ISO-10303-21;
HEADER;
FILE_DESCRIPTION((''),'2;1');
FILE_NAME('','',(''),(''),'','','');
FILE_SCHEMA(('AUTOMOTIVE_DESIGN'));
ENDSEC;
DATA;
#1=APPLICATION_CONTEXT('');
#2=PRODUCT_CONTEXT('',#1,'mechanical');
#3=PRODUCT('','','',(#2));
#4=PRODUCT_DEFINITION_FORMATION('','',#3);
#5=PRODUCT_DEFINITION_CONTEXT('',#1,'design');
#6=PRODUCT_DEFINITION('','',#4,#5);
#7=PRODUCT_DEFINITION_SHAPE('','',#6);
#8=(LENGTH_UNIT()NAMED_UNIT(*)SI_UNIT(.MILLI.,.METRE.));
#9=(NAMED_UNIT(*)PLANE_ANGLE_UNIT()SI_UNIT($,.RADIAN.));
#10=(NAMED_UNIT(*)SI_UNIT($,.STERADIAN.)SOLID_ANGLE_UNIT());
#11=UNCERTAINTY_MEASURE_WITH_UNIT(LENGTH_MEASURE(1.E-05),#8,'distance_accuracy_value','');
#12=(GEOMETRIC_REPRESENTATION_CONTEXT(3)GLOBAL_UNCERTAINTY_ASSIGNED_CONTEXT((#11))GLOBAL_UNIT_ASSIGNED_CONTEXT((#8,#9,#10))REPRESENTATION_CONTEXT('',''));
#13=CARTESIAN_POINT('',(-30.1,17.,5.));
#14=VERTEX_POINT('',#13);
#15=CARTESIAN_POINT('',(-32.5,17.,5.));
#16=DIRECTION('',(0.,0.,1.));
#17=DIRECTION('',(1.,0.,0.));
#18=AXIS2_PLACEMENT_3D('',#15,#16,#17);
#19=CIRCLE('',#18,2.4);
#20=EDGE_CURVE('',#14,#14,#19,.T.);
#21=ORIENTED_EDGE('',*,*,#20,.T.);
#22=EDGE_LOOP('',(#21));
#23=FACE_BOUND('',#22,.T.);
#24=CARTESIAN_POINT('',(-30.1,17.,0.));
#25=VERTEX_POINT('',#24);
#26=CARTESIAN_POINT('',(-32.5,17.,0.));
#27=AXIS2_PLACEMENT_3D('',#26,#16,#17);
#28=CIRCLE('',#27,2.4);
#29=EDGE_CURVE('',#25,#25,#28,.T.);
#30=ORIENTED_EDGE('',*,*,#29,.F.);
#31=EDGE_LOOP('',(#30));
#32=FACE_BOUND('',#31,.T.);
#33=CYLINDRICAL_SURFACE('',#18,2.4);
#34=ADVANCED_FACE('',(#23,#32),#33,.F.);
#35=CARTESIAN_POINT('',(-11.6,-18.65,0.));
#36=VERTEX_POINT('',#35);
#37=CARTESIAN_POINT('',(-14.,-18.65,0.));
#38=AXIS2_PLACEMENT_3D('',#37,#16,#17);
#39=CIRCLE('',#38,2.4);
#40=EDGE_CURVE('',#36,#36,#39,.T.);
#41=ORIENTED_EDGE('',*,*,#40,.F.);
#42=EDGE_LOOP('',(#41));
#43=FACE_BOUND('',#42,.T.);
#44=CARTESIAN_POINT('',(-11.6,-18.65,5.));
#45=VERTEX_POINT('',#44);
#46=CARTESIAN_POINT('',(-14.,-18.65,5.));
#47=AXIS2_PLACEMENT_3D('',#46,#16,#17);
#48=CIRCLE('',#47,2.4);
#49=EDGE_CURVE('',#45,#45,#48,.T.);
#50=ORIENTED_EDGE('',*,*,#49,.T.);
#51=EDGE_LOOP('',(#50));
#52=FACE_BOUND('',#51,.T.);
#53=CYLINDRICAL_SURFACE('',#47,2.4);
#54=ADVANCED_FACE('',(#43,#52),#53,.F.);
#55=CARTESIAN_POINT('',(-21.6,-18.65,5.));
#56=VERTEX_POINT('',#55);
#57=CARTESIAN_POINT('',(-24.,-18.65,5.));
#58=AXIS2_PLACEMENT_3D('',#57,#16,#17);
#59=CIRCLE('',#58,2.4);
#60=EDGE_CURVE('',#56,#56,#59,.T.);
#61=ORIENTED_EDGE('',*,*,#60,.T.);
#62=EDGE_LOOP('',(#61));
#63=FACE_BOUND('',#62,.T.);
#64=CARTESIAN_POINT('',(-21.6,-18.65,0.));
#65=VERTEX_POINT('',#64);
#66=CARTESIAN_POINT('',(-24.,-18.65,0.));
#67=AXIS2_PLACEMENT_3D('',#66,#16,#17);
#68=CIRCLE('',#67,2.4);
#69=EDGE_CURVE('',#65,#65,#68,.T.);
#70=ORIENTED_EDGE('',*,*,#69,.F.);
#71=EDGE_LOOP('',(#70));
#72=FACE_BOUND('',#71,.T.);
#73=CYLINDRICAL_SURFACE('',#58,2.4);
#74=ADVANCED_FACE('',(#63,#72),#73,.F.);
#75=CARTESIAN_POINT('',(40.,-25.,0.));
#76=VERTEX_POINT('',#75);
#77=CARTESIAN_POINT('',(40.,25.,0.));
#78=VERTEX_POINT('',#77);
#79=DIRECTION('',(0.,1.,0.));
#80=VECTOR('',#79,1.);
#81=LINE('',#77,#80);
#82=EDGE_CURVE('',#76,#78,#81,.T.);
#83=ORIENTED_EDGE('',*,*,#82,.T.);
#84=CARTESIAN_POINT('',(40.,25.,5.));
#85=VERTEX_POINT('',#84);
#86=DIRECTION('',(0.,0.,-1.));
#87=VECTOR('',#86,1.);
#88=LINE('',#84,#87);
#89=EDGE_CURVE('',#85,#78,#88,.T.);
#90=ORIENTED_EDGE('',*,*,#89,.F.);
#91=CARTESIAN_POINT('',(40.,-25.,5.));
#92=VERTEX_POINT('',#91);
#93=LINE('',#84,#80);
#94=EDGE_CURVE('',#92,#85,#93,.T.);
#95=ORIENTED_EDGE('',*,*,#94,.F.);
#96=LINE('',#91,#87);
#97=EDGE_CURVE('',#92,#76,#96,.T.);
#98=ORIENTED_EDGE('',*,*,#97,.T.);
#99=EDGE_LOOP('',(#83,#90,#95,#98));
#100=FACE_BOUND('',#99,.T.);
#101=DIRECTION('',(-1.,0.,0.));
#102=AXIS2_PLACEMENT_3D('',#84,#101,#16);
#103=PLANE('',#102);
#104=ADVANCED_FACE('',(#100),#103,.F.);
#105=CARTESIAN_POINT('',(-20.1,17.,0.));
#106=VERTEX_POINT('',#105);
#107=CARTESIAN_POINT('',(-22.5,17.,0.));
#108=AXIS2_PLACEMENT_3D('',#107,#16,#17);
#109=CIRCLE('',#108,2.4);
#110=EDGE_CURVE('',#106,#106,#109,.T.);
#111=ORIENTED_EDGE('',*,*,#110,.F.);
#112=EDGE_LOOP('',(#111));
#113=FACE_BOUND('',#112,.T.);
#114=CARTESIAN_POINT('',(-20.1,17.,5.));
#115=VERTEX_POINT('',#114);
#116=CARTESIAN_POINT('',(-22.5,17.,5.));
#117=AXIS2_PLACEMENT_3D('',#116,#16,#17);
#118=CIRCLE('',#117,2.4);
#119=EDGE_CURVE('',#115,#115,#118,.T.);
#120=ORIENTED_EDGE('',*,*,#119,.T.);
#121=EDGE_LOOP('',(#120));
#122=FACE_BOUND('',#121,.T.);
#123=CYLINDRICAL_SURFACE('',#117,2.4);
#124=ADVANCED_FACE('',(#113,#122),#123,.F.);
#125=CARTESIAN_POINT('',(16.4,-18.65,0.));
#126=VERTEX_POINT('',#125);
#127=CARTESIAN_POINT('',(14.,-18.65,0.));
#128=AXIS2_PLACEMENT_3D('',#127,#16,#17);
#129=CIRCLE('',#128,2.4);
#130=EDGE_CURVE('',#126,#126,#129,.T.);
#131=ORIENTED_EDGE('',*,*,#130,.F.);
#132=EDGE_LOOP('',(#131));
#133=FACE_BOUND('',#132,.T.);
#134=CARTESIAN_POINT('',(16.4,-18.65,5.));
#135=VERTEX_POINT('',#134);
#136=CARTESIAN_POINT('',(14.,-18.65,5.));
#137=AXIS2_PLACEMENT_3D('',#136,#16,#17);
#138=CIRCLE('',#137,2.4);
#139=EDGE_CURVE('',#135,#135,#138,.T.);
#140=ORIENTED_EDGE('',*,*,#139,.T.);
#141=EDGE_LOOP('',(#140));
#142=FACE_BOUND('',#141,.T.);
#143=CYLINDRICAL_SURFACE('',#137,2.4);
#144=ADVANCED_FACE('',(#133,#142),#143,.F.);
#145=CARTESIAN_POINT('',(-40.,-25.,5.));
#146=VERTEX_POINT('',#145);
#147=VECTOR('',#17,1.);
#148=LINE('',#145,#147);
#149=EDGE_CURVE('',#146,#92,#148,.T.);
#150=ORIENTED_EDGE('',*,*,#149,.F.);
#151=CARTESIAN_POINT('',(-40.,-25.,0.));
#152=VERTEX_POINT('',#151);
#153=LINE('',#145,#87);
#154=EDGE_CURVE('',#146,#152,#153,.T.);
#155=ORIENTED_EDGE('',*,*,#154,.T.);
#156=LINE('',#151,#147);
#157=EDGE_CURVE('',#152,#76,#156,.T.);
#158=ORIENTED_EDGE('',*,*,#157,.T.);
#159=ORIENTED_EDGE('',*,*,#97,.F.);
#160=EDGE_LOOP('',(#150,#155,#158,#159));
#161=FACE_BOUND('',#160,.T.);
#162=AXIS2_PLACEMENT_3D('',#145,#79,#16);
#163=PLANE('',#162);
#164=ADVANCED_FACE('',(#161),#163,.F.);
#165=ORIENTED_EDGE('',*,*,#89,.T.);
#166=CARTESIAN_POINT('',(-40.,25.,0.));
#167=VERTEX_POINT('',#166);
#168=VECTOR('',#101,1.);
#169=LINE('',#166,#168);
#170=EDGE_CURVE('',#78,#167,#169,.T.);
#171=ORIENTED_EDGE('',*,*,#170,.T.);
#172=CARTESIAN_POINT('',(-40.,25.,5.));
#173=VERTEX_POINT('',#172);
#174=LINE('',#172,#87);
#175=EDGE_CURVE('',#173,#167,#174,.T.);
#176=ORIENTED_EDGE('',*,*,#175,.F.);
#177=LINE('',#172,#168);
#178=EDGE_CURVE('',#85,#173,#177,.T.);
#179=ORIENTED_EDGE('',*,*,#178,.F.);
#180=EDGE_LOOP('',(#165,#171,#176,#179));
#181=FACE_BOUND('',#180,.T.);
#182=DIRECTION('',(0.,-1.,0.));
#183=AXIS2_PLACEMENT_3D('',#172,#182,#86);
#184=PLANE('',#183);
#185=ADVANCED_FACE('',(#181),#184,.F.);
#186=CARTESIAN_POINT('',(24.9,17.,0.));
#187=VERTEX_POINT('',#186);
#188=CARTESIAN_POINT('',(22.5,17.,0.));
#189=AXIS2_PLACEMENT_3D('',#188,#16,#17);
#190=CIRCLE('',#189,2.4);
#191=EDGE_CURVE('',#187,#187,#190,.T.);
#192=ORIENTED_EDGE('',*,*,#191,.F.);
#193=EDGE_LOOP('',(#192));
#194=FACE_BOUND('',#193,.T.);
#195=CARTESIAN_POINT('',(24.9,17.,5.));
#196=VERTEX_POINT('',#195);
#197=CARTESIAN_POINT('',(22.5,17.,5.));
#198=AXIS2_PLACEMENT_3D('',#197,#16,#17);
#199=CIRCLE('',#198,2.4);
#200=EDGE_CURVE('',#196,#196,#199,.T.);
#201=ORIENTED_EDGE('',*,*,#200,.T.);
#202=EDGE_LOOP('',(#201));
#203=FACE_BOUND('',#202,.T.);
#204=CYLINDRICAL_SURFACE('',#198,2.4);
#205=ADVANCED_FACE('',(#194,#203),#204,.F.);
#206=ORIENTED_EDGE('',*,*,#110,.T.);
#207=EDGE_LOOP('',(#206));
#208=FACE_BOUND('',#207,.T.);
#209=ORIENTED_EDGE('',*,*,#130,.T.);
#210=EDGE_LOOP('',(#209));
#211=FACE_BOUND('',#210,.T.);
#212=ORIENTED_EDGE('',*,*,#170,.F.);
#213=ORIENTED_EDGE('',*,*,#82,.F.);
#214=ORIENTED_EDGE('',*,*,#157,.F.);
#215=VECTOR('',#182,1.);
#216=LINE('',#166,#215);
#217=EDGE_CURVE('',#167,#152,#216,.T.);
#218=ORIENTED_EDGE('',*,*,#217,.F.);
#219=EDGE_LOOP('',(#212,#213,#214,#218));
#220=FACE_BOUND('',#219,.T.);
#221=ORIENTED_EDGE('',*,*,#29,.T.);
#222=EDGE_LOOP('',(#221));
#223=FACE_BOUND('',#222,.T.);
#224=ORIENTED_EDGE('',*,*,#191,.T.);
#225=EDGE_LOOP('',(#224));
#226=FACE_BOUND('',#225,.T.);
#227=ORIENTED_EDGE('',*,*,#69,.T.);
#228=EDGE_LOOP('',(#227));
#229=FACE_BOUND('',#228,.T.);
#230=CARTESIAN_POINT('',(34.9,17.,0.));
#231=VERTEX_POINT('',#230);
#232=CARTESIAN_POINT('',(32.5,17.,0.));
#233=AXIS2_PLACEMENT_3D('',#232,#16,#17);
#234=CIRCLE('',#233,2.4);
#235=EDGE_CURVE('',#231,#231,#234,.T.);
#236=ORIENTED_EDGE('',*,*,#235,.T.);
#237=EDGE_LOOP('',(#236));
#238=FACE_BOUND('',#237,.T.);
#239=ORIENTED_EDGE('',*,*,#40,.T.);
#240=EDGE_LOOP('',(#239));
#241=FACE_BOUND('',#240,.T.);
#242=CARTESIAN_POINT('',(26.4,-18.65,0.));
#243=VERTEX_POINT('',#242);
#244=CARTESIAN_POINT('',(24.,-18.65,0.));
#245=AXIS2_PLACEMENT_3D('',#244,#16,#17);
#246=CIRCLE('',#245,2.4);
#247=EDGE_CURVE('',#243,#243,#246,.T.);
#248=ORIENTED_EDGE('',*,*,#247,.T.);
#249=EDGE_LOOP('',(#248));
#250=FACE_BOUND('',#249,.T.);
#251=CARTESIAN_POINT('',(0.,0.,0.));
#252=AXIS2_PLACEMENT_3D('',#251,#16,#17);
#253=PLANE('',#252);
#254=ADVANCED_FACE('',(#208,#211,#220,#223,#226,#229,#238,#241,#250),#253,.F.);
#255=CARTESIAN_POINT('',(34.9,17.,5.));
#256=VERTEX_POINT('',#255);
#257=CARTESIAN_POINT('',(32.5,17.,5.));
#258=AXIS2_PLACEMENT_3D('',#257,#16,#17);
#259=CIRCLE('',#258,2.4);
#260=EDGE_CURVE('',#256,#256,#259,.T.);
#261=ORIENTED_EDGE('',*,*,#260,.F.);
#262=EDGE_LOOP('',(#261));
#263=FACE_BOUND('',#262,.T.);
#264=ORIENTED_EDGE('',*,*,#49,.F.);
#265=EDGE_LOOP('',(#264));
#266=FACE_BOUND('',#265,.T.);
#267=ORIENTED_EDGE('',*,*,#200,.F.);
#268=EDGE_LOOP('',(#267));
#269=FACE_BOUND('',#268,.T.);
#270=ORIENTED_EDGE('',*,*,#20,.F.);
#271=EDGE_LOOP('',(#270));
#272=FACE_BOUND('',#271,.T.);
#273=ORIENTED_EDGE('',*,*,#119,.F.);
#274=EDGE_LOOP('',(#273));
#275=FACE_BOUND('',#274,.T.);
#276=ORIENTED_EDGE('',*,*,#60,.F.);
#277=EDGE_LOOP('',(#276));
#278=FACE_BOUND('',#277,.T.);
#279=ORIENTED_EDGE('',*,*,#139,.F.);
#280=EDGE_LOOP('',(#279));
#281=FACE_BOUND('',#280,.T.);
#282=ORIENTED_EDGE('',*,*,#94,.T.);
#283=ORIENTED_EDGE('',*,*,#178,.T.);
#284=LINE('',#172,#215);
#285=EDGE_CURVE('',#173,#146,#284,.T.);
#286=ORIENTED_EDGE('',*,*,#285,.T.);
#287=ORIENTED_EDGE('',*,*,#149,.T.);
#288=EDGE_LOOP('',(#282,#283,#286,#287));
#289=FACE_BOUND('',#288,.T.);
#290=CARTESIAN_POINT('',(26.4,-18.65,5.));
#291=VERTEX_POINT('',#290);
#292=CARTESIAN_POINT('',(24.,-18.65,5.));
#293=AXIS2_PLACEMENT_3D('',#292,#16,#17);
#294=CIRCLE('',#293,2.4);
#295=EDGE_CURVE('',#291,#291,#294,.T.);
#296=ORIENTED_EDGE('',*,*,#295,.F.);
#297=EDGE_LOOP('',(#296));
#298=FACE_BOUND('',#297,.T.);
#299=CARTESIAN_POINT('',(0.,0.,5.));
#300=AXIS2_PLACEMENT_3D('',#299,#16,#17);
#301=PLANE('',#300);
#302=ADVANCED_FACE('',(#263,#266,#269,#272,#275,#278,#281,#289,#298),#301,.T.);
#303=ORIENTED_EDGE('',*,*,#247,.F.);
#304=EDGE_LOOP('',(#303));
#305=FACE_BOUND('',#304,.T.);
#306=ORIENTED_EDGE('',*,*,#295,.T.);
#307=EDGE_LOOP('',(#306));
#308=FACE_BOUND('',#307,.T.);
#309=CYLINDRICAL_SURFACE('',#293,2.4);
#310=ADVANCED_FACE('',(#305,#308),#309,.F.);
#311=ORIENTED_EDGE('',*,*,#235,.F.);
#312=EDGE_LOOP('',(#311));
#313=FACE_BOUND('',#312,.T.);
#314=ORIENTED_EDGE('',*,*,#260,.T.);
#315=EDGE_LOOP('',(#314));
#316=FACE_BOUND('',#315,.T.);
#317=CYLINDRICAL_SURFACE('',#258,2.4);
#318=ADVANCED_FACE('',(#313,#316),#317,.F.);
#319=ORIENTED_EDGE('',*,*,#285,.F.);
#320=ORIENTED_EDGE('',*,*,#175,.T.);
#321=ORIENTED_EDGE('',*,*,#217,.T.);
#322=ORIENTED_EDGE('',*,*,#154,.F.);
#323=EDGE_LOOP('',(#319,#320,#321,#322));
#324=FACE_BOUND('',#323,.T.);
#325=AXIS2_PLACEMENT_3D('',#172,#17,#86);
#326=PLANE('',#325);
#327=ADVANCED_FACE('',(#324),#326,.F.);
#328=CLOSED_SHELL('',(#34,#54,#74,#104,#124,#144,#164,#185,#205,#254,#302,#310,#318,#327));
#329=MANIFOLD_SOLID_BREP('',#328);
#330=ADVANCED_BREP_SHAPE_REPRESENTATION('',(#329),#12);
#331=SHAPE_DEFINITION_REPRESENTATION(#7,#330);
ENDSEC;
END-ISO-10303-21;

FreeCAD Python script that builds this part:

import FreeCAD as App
import Part
import Sketcher
Q = App.Units.Quantity

doc = App.newDocument("Part")
body = doc.addObject("PartDesign::Body", "Body")

# Sketch on XY plane
sketch1 = body.newObject("Sketcher::SketchObject", "Sketch")
sketch1.AttachmentSupport = (doc.getObject("XY_Plane"), [""])
sketch1.MapMode = "FlatFace"
sketch1.addGeometry(Part.LineSegment(App.Vector(-40, 25, 0), App.Vector(-40, -25, 0)), False)
sketch1.addGeometry(Part.LineSegment(App.Vector(-40, -25, 0), App.Vector(40, -25, 0)), False)
sketch1.addGeometry(Part.LineSegment(App.Vector(40, -25, 0), App.Vector(40, 25, 0)), False)
sketch1.addGeometry(Part.LineSegment(App.Vector(40, 25, 0), App.Vector(-40, 25, 0)), False)
sketch1.addConstraint(Sketcher.Constraint("Coincident", 0, 2, 1, 1))
sketch1.addConstraint(Sketcher.Constraint("Coincident", 1, 2, 2, 1))
sketch1.addConstraint(Sketcher.Constraint("Coincident", 2, 2, 3, 1))
sketch1.addConstraint(Sketcher.Constraint("Coincident", 3, 2, 0, 1))
sketch1.addConstraint(Sketcher.Constraint("Vertical", 0))
sketch1.addConstraint(Sketcher.Constraint("Horizontal", 1))
sketch1.addConstraint(Sketcher.Constraint("Vertical", 2))
sketch1.addConstraint(Sketcher.Constraint("Horizontal", 3))
sketch1.addConstraint(Sketcher.Constraint("Symmetric", 0, 2, 2, 2, -1, 1))
sketch1.addConstraint(Sketcher.Constraint("DistanceX", 1, 1, 1, 2, Q("80 mm")))
sketch1.addConstraint(Sketcher.Constraint("DistanceY", 0, 2, 0, 1, Q("50 mm")))
pad1 = body.newObject("PartDesign::Pad", "Pad")
pad1.Profile = sketch1
pad1.Length = 5

# Sketch on XY plane
sketch2 = body.newObject("Sketcher::SketchObject", "Sketch001")
sketch2.AttachmentSupport = (doc.getObject("XY_Plane"), [""])
sketch2.MapMode = "FlatFace"
sketch2.AttachmentOffset = App.Placement(App.Vector(0, 0, 5), App.Rotation())
sketch2.addGeometry(Part.Circle(App.Vector(-32.5, 17, 0), App.Vector(0, 0, 1), 2.4), False)
sketch2.addGeometry(Part.Circle(App.Vector(-22.5, 17, 0), App.Vector(0, 0, 1), 2.4), False)
sketch2.addGeometry(Part.Circle(App.Vector(-24, -18.6, 0), App.Vector(0, 0, 1), 2.4), False)
sketch2.addGeometry(Part.Circle(App.Vector(-14, -18.6, 0), App.Vector(0, 0, 1), 2.4), False)
sketch2.addGeometry(Part.Circle(App.Vector(14, -18.6, 0), App.Vector(0, 0, 1), 2.4), False)
sketch2.addGeometry(Part.Circle(App.Vector(24, -18.6, 0), App.Vector(0, 0, 1), 2.4), False)
sketch2.addGeometry(Part.Circle(App.Vector(22.5, 17, 0), App.Vector(0, 0, 1), 2.4), False)
sketch2.addGeometry(Part.Circle(App.Vector(32.5, 17, 0), App.Vector(0, 0, 1), 2.4), False)
sketch2.addConstraint(Sketcher.Constraint("Equal", 0, 1))
sketch2.addConstraint(Sketcher.Constraint("Equal", 1, 2))
sketch2.addConstraint(Sketcher.Constraint("Equal", 2, 3))
sketch2.addConstraint(Sketcher.Constraint("Equal", 3, 4))
sketch2.addConstraint(Sketcher.Constraint("Equal", 4, 5))
sketch2.addConstraint(Sketcher.Constraint("Equal", 5, 6))
sketch2.addConstraint(Sketcher.Constraint("Equal", 6, 7))
sketch2.addConstraint(Sketcher.Constraint("Symmetric", 3, 3, 4, 3, -2))
sketch2.addConstraint(Sketcher.Constraint("Symmetric", 2, 3, 5, 3, -2))
sketch2.addConstraint(Sketcher.Constraint("Symmetric", 1, 3, 6, 3, -2))
sketch2.addConstraint(Sketcher.Constraint("Symmetric", 0, 3, 7, 3, -2))
sketch2.addConstraint(Sketcher.Constraint("Horizontal", 0, 3, 1, 3))
sketch2.addConstraint(Sketcher.Constraint("Horizontal", 2, 3, 3, 3))
sketch2.addConstraint(Sketcher.Constraint("Diameter", 0, Q("4.8 mm")))
sketch2.addConstraint(Sketcher.Constraint("DistanceY", -1, 1, 0, 3, Q("17 mm")))
sketch2.addConstraint(Sketcher.Constraint("DistanceX", 2, 3, -1, 1, Q("24 mm")))
sketch2.addConstraint(Sketcher.Constraint("DistanceX", 3, 3, -1, 1, Q("14 mm")))
sketch2.addConstraint(Sketcher.Constraint("DistanceX", 0, 3, 1, 3, Q("10 mm")))
sketch2.addConstraint(Sketcher.Constraint("DistanceX", 1, 3, 6, 3, Q("45 mm")))
sketch2.addConstraint(Sketcher.Constraint("DistanceY", 2, 3, -1, 1, Q("18.65 mm")))
doc.recompute()
hole = body.newObject("PartDesign::Hole", "Hole")
hole.Profile = sketch2
hole.ThreadType = "None"
hole.Diameter = 4.8
hole.DepthType = "ThroughAll"

doc.recompute()
